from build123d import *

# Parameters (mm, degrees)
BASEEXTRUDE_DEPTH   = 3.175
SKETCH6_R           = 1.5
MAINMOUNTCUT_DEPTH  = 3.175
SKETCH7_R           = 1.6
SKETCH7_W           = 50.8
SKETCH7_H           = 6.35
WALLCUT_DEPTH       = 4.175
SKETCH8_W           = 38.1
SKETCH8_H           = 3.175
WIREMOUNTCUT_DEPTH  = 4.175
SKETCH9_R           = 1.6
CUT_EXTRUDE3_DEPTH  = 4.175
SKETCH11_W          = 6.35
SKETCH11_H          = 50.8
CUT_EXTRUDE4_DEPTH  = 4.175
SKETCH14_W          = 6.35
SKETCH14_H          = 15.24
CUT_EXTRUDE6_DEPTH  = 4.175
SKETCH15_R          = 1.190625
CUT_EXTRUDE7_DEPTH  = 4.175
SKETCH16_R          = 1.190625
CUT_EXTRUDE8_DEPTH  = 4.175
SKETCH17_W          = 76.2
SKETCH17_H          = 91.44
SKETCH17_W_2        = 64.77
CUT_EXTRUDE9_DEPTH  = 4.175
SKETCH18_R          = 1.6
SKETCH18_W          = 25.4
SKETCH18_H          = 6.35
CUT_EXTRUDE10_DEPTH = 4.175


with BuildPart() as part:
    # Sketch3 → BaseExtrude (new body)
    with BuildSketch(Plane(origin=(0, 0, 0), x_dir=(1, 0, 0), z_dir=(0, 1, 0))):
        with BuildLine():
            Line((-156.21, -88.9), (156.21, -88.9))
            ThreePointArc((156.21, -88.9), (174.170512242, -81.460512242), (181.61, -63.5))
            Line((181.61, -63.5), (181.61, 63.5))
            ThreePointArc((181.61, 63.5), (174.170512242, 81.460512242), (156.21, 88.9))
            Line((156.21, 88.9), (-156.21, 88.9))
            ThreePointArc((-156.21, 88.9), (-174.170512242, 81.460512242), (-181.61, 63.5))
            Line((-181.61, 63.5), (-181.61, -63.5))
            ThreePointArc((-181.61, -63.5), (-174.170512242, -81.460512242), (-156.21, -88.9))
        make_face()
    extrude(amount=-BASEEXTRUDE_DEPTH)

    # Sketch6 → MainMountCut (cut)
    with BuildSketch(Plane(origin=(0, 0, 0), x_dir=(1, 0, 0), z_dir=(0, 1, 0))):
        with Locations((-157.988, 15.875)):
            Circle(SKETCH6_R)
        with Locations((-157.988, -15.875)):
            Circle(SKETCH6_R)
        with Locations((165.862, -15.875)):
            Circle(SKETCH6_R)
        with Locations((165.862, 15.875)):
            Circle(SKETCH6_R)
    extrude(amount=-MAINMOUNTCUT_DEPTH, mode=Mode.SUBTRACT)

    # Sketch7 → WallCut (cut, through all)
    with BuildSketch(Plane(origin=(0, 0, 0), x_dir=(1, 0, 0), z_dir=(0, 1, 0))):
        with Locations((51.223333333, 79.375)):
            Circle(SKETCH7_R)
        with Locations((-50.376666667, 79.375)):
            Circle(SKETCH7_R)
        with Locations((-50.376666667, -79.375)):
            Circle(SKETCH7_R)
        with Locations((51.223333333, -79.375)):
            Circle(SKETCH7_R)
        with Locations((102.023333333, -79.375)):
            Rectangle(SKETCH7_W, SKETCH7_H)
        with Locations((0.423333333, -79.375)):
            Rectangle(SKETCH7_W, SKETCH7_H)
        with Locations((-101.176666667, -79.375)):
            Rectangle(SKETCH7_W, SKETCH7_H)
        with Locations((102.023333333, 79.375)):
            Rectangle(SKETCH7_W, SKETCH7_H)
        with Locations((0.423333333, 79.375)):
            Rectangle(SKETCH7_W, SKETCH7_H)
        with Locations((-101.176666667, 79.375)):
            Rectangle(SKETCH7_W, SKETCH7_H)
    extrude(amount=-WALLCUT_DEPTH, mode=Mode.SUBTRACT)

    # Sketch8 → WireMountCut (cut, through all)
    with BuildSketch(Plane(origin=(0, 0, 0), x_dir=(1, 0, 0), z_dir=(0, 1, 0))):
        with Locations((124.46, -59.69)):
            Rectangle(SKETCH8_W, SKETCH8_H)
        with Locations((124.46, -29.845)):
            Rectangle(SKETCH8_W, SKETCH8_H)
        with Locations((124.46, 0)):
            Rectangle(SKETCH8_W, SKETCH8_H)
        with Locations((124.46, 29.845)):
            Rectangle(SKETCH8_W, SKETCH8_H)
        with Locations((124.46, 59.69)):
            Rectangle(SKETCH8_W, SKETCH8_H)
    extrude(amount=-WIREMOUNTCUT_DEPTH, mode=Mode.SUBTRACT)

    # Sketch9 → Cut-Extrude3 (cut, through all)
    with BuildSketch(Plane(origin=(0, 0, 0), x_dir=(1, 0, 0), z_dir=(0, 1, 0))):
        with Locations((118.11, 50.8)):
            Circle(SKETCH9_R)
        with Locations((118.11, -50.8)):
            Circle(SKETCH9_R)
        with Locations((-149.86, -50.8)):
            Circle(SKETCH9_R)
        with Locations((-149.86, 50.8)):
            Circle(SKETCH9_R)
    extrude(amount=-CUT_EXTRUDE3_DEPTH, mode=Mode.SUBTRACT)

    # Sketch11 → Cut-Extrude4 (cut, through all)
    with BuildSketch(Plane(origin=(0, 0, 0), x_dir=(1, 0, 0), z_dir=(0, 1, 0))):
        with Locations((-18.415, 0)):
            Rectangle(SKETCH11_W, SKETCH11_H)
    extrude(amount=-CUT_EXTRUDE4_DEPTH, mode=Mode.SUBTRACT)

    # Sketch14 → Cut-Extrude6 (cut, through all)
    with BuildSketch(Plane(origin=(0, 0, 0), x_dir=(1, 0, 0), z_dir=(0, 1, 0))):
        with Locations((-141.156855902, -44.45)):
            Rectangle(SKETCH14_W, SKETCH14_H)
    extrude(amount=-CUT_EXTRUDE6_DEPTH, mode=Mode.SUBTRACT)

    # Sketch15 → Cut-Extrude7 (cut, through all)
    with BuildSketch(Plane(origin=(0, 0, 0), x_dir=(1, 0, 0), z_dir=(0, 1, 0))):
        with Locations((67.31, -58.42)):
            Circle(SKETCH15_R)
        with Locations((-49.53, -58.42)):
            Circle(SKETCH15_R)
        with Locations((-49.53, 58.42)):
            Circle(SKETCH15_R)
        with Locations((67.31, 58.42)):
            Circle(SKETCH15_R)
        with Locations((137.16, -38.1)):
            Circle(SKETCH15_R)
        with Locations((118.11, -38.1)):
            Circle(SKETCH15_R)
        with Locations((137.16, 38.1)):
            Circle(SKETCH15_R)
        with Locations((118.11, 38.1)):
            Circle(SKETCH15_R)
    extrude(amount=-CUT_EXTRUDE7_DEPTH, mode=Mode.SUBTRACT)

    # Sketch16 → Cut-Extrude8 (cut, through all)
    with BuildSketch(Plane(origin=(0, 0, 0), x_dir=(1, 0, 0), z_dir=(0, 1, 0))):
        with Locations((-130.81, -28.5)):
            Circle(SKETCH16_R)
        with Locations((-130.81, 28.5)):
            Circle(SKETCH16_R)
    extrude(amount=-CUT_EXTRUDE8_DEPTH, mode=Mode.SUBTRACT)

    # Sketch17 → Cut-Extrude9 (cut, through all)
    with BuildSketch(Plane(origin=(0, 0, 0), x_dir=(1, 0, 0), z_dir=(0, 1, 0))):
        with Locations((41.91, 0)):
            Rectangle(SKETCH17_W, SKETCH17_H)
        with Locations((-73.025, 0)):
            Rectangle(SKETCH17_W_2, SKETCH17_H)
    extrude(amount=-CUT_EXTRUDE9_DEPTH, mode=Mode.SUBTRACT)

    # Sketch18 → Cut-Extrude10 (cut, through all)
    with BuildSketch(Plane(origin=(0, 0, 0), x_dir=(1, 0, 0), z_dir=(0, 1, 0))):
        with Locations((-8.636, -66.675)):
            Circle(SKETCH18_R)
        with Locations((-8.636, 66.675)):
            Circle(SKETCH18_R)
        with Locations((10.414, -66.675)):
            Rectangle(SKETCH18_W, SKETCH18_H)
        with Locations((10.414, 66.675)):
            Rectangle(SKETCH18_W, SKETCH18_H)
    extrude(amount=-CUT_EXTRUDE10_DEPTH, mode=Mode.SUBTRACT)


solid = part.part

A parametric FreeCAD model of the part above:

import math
import FreeCAD as App
import Part
import Sketcher

V = App.Vector
Q = App.Units.Quantity


def add_polygon(sketch, points):
    """Adds a closed chain of lines whose ends are joined by coincident constraints."""
    first, n = sketch.GeometryCount, len(points)
    for a, b in zip(points, points[1:] + points[:1]):
        sketch.addGeometry(Part.LineSegment(App.Vector(*a, 0), App.Vector(*b, 0)), False)
    for i in range(n):
        sketch.addConstraint(Sketcher.Constraint("Coincident", first + i, 2, first + (i + 1) % n, 1))

doc = App.newDocument("Part")
body = doc.addObject("PartDesign::Body", "Body")

# Sketch on XZ plane
sketch1 = body.newObject("Sketcher::SketchObject", "Sketch")
sketch1.AttachmentSupport = (doc.getObject("XZ_Plane"), [""])
sketch1.MapMode = "FlatFace"
sketch1.addGeometry([
    Part.LineSegment(V(-156, 89, 0), V(156, 89, 0)),  # 0
    Part.ArcOfCircle(Part.Circle(V(156, 64, 0), V(0, 0, 1), 25), math.radians(0), math.radians(90)),  # 1
    Part.LineSegment(V(182, 64, 0), V(182, -64, 0)),  # 2
    Part.ArcOfCircle(Part.Circle(V(156, -64, 0), V(0, 0, 1), 25), math.radians(-90), math.radians(0)),  # 3
    Part.LineSegment(V(156, -89, 0), V(-156, -89, 0)),  # 4
    Part.ArcOfCircle(Part.Circle(V(-156, -64, 0), V(0, 0, 1), 25), math.radians(180), math.radians(270)),  # 5
    Part.LineSegment(V(-182, -64, 0), V(-182, 64, 0)),  # 6
    Part.ArcOfCircle(Part.Circle(V(-156, 64, 0), V(0, 0, 1), 25), math.radians(90), math.radians(180)),  # 7
], False)
sketch1.addConstraint([
    Sketcher.Constraint("Tangent", 0, 2, 1, 2),
    Sketcher.Constraint("Tangent", 1, 1, 2, 1),
    Sketcher.Constraint("Tangent", 2, 2, 3, 2),
    Sketcher.Constraint("Tangent", 3, 1, 4, 1),
    Sketcher.Constraint("Tangent", 4, 2, 5, 2),
    Sketcher.Constraint("Tangent", 5, 1, 6, 1),
    Sketcher.Constraint("Tangent", 6, 2, 7, 2),
    Sketcher.Constraint("Tangent", 7, 1, 0, 1),
    Sketcher.Constraint("Horizontal", 0),
    Sketcher.Constraint("Vertical", 2),
    Sketcher.Constraint("Horizontal", 4),
    Sketcher.Constraint("Vertical", 6),
    Sketcher.Constraint("Equal", 1, 3),
    Sketcher.Constraint("Equal", 3, 5),
    Sketcher.Constraint("Equal", 5, 7),
    Sketcher.Constraint("Symmetric", 1, 3, 5, 3, -1, 1),
    Sketcher.Constraint("Radius", 1, Q("1 in")),
    Sketcher.Constraint("DistanceY", 2, 2, 2, 1, Q("5 in")),
    Sketcher.Constraint("DistanceX", 0, 1, 0, 2, Q("12.3 in")),
])
pad1 = body.newObject("PartDesign::Pad", "Pad")
pad1.Profile = sketch1
pad1.Length = Q("0.125 in")

# Sketch on XZ plane
sketch2 = body.newObject("Sketcher::SketchObject", "Sketch001")
sketch2.AttachmentSupport = (doc.getObject("XZ_Plane"), [""])
sketch2.MapMode = "FlatFace"
sketch2.addGeometry([
    Part.Circle(V(-158, -15.9, 0), V(0, 0, 1), 1.5),
    Part.Circle(V(-158, 15.9, 0), V(0, 0, 1), 1.5),
    Part.Circle(V(165.9, 15.9, 0), V(0, 0, 1), 1.5),
    Part.Circle(V(165.9, -15.9, 0), V(0, 0, 1), 1.5),
], False)
sketch2.addConstraint([
    Sketcher.Constraint("Equal", 0, 1),
    Sketcher.Constraint("Equal", 1, 2),
    Sketcher.Constraint("Equal", 2, 3),
    Sketcher.Constraint("Symmetric", 0, 3, 1, 3, -1),
    Sketcher.Constraint("Symmetric", 2, 3, 3, 3, -1),
    Sketcher.Constraint("Horizontal", 1, 3, 2, 3),
    Sketcher.Constraint("Diameter", 0, Q("3 mm")),
    Sketcher.Constraint("DistanceX", 0, 3, -1, 1, Q("6.22 in")),
    Sketcher.Constraint("DistanceX", -1, 1, 2, 3, Q("6.53 in")),
    Sketcher.Constraint("DistanceY", 0, 3, 1, 3, Q("1.25 in")),
])
pocket1 = body.newObject("PartDesign::Pocket", "Pocket")
pocket1.Profile = sketch2
pocket1.Length = Q("0.125 in")
pocket1.Reversed = True

# Sketch on XZ plane
sketch3 = body.newObject("Sketcher::SketchObject", "Sketch002")
sketch3.AttachmentSupport = (doc.getObject("XZ_Plane"), [""])
sketch3.MapMode = "FlatFace"
sketch3.addGeometry(Part.Circle(V(51.2, -79.4, 0), V(0, 0, 1), 1.6), False)  # 0
sketch3.addGeometry(Part.Circle(V(-50.4, -79.4, 0), V(0, 0, 1), 1.6), False)  # 1
sketch3.addGeometry(Part.Circle(V(-50.4, 79.4, 0), V(0, 0, 1), 1.6), False)  # 2
sketch3.addGeometry(Part.Circle(V(51.2, 79.4, 0), V(0, 0, 1), 1.6), False)  # 3
add_polygon(sketch3, [(76.6, 76.2), (76.6, 82.5), (127.4, 82.5), (127.4, 76.2)])  # lines 4-7
add_polygon(sketch3, [(-25, 76.2), (-25, 82.5), (25.8, 82.5), (25.8, 76.2)])  # lines 8-11
add_polygon(sketch3, [(-126.6, 76.2), (-126.6, 82.5), (-75.8, 82.5), (-75.8, 76.2)])  # lines 12-15
add_polygon(sketch3, [(76.6, -82.5), (76.6, -76.2), (127.4, -76.2), (127.4, -82.5)])  # lines 16-19
add_polygon(sketch3, [(-25, -82.5), (-25, -76.2), (25.8, -76.2), (25.8, -82.5)])  # lines 20-23
add_polygon(sketch3, [(-126.6, -82.5), (-126.6, -76.2), (-75.8, -76.2), (-75.8, -82.5)])  # lines 24-27
sketch3.addConstraint([
    Sketcher.Constraint("Vertical", 4),
    Sketcher.Constraint("Horizontal", 5),
    Sketcher.Constraint("Vertical", 6),
    Sketcher.Constraint("Horizontal", 7),
    Sketcher.Constraint("Vertical", 8),
    Sketcher.Constraint("Horizontal", 9),
    Sketcher.Constraint("Vertical", 10),
    Sketcher.Constraint("Horizontal", 11),
    Sketcher.Constraint("Vertical", 12),
    Sketcher.Constraint("Horizontal", 13),
    Sketcher.Constraint("Vertical", 14),
    Sketcher.Constraint("Horizontal", 15),
    Sketcher.Constraint("Vertical", 16),
    Sketcher.Constraint("Horizontal", 17),
    Sketcher.Constraint("Vertical", 18),
    Sketcher.Constraint("Horizontal", 19),
    Sketcher.Constraint("Vertical", 20),
    Sketcher.Constraint("Horizontal", 21),
    Sketcher.Constraint("Vertical", 22),
    Sketcher.Constraint("Horizontal", 23),
    Sketcher.Constraint("Vertical", 24),
    Sketcher.Constraint("Horizontal", 25),
    Sketcher.Constraint("Vertical", 26),
    Sketcher.Constraint("Horizontal", 27),
    Sketcher.Constraint("Equal", 0, 1),
    Sketcher.Constraint("Equal", 1, 2),
    Sketcher.Constraint("Equal", 2, 3),
    Sketcher.Constraint("Symmetric", 1, 3, 2, 3, -1),
    Sketcher.Constraint("Symmetric", 0, 3, 3, 3, -1),
    Sketcher.Constraint("Symmetric", 7, 2, 16, 2, -1),
    Sketcher.Constraint("Symmetric", 5, 2, 18, 2, -1),
    Sketcher.Constraint("Symmetric", 11, 2, 20, 2, -1),
    Sketcher.Constraint("Symmetric", 9, 2, 22, 2, -1),
    Sketcher.Constraint("Symmetric", 15, 2, 24, 2, -1),
    Sketcher.Constraint("Symmetric", 13, 2, 26, 2, -1),
    Sketcher.Constraint("Horizontal", 0, 3, 1, 3),
    Sketcher.Constraint("Horizontal", 5, 2, 8, 2),
    Sketcher.Constraint("Horizontal", 7, 2, 10, 2),
    Sketcher.Constraint("Horizontal", 9, 2, 12, 2),
    Sketcher.Constraint("Horizontal", 11, 2, 14, 2),
    Sketcher.Constraint("Equal", 7, 9),
    Sketcher.Constraint("Equal", 11, 13),
    Sketcher.Constraint("DistanceX", 5, 1, 5, 2, Q("2 in")),
    Sketcher.Constraint("DistanceY", -1, 1, 6, 2, Q("3 in")),
    Sketcher.Constraint("DistanceX", 1, 3, 0, 3, Q("4 in")),
    Sketcher.Constraint("DistanceX", 3, 3, 4, 2, Q("1 in")),
    Sketcher.Constraint("DistanceX", 2, 3, 8, 2, Q("1 in")),
    Sketcher.Constraint("DistanceX", 12, 2, 2, 3, Q("3 in")),
    Sketcher.Constraint("DistanceY", 4, 1, 4, 2, Q("0.25 in")),
    Sketcher.Constraint("Diameter", 0, Q("3.2 mm")),
    Sketcher.Constraint("DistanceY", 1, 3, 2, 3, Q("6.25 in")),
    Sketcher.Constraint("DistanceX", -1, 1, 0, 3, Q("51.223333 mm")),
])
pocket2 = body.newObject("PartDesign::Pocket", "Pocket001")
pocket2.Profile = sketch3
pocket2.Type = "ThroughAll"
pocket2.Reversed = True

# Sketch on XZ plane
sketch4 = body.newObject("Sketcher::SketchObject", "Sketch003")
sketch4.AttachmentSupport = (doc.getObject("XZ_Plane"), [""])
sketch4.MapMode = "FlatFace"
add_polygon(sketch4, [(105.4, 58.1), (105.4, 61.3), (143.5, 61.3), (143.5, 58.1)])  # lines 0-3
add_polygon(sketch4, [(105.4, 28.3), (105.4, 31.4), (143.5, 31.4), (143.5, 28.3)])  # lines 4-7
add_polygon(sketch4, [(105.4, -1.6), (105.4, 1.6), (143.5, 1.6), (143.5, -1.6)])  # lines 8-11
add_polygon(sketch4, [(105.4, -31.4), (105.4, -28.3), (143.5, -28.3), (143.5, -31.4)])  # lines 12-15
add_polygon(sketch4, [(105.4, -61.3), (105.4, -58.1), (143.5, -58.1), (143.5, -61.3)])  # lines 16-19
sketch4.addConstraint([
    Sketcher.Constraint("Vertical", 0),
    Sketcher.Constraint("Horizontal", 1),
    Sketcher.Constraint("Vertical", 2),
    Sketcher.Constraint("Horizontal", 3),
    Sketcher.Constraint("Vertical", 4),
    Sketcher.Constraint("Horizontal", 5),
    Sketcher.Constraint("Vertical", 6),
    Sketcher.Constraint("Horizontal", 7),
    Sketcher.Constraint("Vertical", 8),
    Sketcher.Constraint("Horizontal", 9),
    Sketcher.Constraint("Vertical", 10),
    Sketcher.Constraint("Horizontal", 11),
    Sketcher.Constraint("Vertical", 12),
    Sketcher.Constraint("Horizontal", 13),
    Sketcher.Constraint("Vertical", 14),
    Sketcher.Constraint("Horizontal", 15),
    Sketcher.Constraint("Vertical", 16),
    Sketcher.Constraint("Horizontal", 17),
    Sketcher.Constraint("Vertical", 18),
    Sketcher.Constraint("Horizontal", 19),
    Sketcher.Constraint("Symmetric", 7, 2, 12, 2, -1),
    Sketcher.Constraint("Symmetric", 5, 2, 14, 2, -1),
    Sketcher.Constraint("Symmetric", 3, 2, 16, 2, -1),
    Sketcher.Constraint("Symmetric", 1, 2, 18, 2, -1),
    Sketcher.Constraint("Vertical", 3, 2, 4, 2),
    Sketcher.Constraint("Vertical", 2, 2, 5, 2),
    Sketcher.Constraint("Vertical", 7, 2, 8, 2),
    Sketcher.Constraint("Vertical", 6, 2, 9, 2),
    Sketcher.Constraint("Equal", 2, 4),
    Sketcher.Constraint("Equal", 6, 8),
    Sketcher.Constraint("DistanceX", 1, 1, 1, 2, Q("1.5 in")),
    Sketcher.Constraint("DistanceY", 6, 2, 1, 2, Q("1.3 in")),
    Sketcher.Constraint("DistanceY", 10, 2, 5, 2, Q("1.3 in")),
    Sketcher.Constraint("DistanceY", 14, 2, 9, 2, Q("1.3 in")),
    Sketcher.Constraint("DistanceY", 0, 1, 0, 2, Q("0.125 in")),
    Sketcher.Constraint("DistanceX", -1, 1, 0, 2, Q("4.15 in")),
])
pocket3 = body.newObject("PartDesign::Pocket", "Pocket002")
pocket3.Profile = sketch4
pocket3.Type = "ThroughAll"
pocket3.Reversed = True

# Sketch on XZ plane
sketch5 = body.newObject("Sketcher::SketchObject", "Sketch004")
sketch5.AttachmentSupport = (doc.getObject("XZ_Plane"), [""])
sketch5.MapMode = "FlatFace"
sketch5.addGeometry([
    Part.Circle(V(118.1, -50.8, 0), V(0, 0, 1), 1.6),
    Part.Circle(V(118.1, 50.8, 0), V(0, 0, 1), 1.6),
    Part.Circle(V(-149.9, 50.8, 0), V(0, 0, 1), 1.6),
    Part.Circle(V(-149.9, -50.8, 0), V(0, 0, 1), 1.6),
], False)
sketch5.addConstraint([
    Sketcher.Constraint("Equal", 0, 1),
    Sketcher.Constraint("Equal", 1, 2),
    Sketcher.Constraint("Equal", 2, 3),
    Sketcher.Constraint("Symmetric", 0, 3, 1, 3, -1),
    Sketcher.Constraint("Symmetric", 2, 3, 3, 3, -1),
    Sketcher.Constraint("Horizontal", 1, 3, 2, 3),
    Sketcher.Constraint("DistanceY", 0, 3, -1, 1, Q("2 in")),
    Sketcher.Constraint("DistanceX", 2, 3, -1, 1, Q("5.9 in")),
    Sketcher.Constraint("Diameter", 0, Q("3.2 mm")),
    Sketcher.Constraint("DistanceX", -1, 1, 0, 3, Q("4.65 in")),
])
pocket4 = body.newObject("PartDesign::Pocket", "Pocket003")
pocket4.Profile = sketch5
pocket4.Type = "ThroughAll"
pocket4.Reversed = True

# Sketch on XZ plane
sketch6 = body.newObject("Sketcher::SketchObject", "Sketch005")
sketch6.AttachmentSupport = (doc.getObject("XZ_Plane"), [""])
sketch6.MapMode = "FlatFace"
add_polygon(sketch6, [(-22, -25), (-22, 25), (-15, 25), (-15, -25)])  # lines 0-3
sketch6.addConstraint([
    Sketcher.Constraint("Vertical", 0),
    Sketcher.Constraint("Horizontal", 1),
    Sketcher.Constraint("Vertical", 2),
    Sketcher.Constraint("Horizontal", 3),
    Sketcher.Constraint("DistanceY", 0, 1, 0, 2, Q("2 in")),
    Sketcher.Constraint("DistanceY", -1, 1, 0, 2, Q("1 in")),
    Sketcher.Constraint("DistanceX", 1, 1, 1, 2, Q("0.25 in")),
    Sketcher.Constraint("DistanceX", 1, 2, -1, 1, Q("0.6 in")),
])
pocket5 = body.newObject("PartDesign::Pocket", "Pocket004")
pocket5.Profile = sketch6
pocket5.Type = "ThroughAll"
pocket5.Reversed = True

# Sketch on XZ plane
sketch7 = body.newObject("Sketcher::SketchObject", "Sketch006")
sketch7.AttachmentSupport = (doc.getObject("XZ_Plane"), [""])
sketch7.MapMode = "FlatFace"
add_polygon(sketch7, [(-144, 37), (-144, 52), (-138, 52), (-138, 37)])  # lines 0-3
sketch7.addConstraint([
    Sketcher.Constraint("Vertical", 0),
    Sketcher.Constraint("Horizontal", 1),
    Sketcher.Constraint("Vertical", 2),
    Sketcher.Constraint("Horizontal", 3),
    Sketcher.Constraint("DistanceY", 0, 1, 0, 2, Q("0.6 in")),
    Sketcher.Constraint("DistanceX", 1, 1, 1, 2, Q("0.25 in")),
    Sketcher.Constraint("DistanceY", -1, 1, 0, 2, Q("2.05 in")),
    Sketcher.Constraint("DistanceX", 0, 2, -1, 1, Q("144.331856 mm")),
])
pocket6 = body.newObject("PartDesign::Pocket", "Pocket005")
pocket6.Profile = sketch7
pocket6.Type = "ThroughAll"
pocket6.Reversed = True

# Sketch on XZ plane
sketch8 = body.newObject("Sketcher::SketchObject", "Sketch007")
sketch8.AttachmentSupport = (doc.getObject("XZ_Plane"), [""])
sketch8.MapMode = "FlatFace"
sketch8.addGeometry([
    Part.Circle(V(67.3, 58.4, 0), V(0, 0, 1), 1.2),  # 0
    Part.Circle(V(-49.5, 58.4, 0), V(0, 0, 1), 1.2),  # 1
    Part.Circle(V(-49.5, -58.4, 0), V(0, 0, 1), 1.2),  # 2
    Part.Circle(V(67.3, -58.4, 0), V(0, 0, 1), 1.2),  # 3
    Part.Circle(V(137.2, 38.1, 0), V(0, 0, 1), 1.2),  # 4
    Part.Circle(V(118.1, 38.1, 0), V(0, 0, 1), 1.2),  # 5
    Part.Circle(V(137.2, -38.1, 0), V(0, 0, 1), 1.2),  # 6
    Part.Circle(V(118.1, -38.1, 0), V(0, 0, 1), 1.2),  # 7
], False)
sketch8.addConstraint([
    Sketcher.Constraint("Equal", 0, 1),
    Sketcher.Constraint("Equal", 1, 2),
    Sketcher.Constraint("Equal", 2, 3),
    Sketcher.Constraint("Equal", 3, 4),
    Sketcher.Constraint("Equal", 4, 5),
    Sketcher.Constraint("Equal", 5, 6),
    Sketcher.Constraint("Equal", 6, 7),
    Sketcher.Constraint("Symmetric", 1, 3, 2, 3, -1),
    Sketcher.Constraint("Symmetric", 0, 3, 3, 3, -1),
    Sketcher.Constraint("Symmetric", 4, 3, 6, 3, -1),
    Sketcher.Constraint("Symmetric", 5, 3, 7, 3, -1),
    Sketcher.Constraint("Horizontal", 0, 3, 1, 3),
    Sketcher.Constraint("Horizontal", 4, 3, 5, 3),
    Sketcher.Constraint("Diameter", 0, Q("0.09375 in")),
    Sketcher.Constraint("DistanceX", 0, 3, 5, 3, Q("2 in")),
    Sketcher.Constraint("DistanceY", 6, 3, 4, 3, Q("3 in")),
    Sketcher.Constraint("DistanceY", -1, 1, 0, 3, Q("2.3 in")),
    Sketcher.Constraint("DistanceX", -1, 1, 4, 3, Q("5.4 in")),
    Sketcher.Constraint("DistanceX", 1, 3, 0, 3, Q("4.6 in")),
    Sketcher.Constraint("DistanceX", -1, 1, 0, 3, Q("2.65 in")),
])
pocket7 = body.newObject("PartDesign::Pocket", "Pocket006")
pocket7.Profile = sketch8
pocket7.Type = "ThroughAll"
pocket7.Reversed = True

# Sketch on XZ plane
sketch9 = body.newObject("Sketcher::SketchObject", "Sketch008")
sketch9.AttachmentSupport = (doc.getObject("XZ_Plane"), [""])
sketch9.MapMode = "FlatFace"
sketch9.addGeometry([
    Part.Circle(V(-130.8, 28.5, 0), V(0, 0, 1), 1.2),
    Part.Circle(V(-130.8, -28.5, 0), V(0, 0, 1), 1.2),
], False)
sketch9.addConstraint([
    Sketcher.Constraint("Equal", 0, 1),
    Sketcher.Constraint("Symmetric", 0, 3, 1, 3, -1),
    Sketcher.Constraint("Diameter", 0, Q("0.09375 in")),
    Sketcher.Constraint("DistanceX", 0, 3, -1, 1, Q("5.15 in")),
    Sketcher.Constraint("DistanceY", -1, 1, 0, 3, Q("28.5 mm")),
])
pocket8 = body.newObject("PartDesign::Pocket", "Pocket007")
pocket8.Profile = sketch9
pocket8.Type = "ThroughAll"
pocket8.Reversed = True

# Sketch on XZ plane
sketch10 = body.newObject("Sketcher::SketchObject", "Sketch009")
sketch10.AttachmentSupport = (doc.getObject("XZ_Plane"), [""])
sketch10.MapMode = "FlatFace"
add_polygon(sketch10, [(4, -46), (4, 46), (80, 46), (80, -46)])  # lines 0-3
add_polygon(sketch10, [(-105, -46), (-105, 46), (-41, 46), (-41, -46)])  # lines 4-7
sketch10.addConstraint([
    Sketcher.Constraint("Vertical", 0),
    Sketcher.Constraint("Horizontal", 1),
    Sketcher.Constraint("Vertical", 2),
    Sketcher.Constraint("Horizontal", 3),
    Sketcher.Constraint("Vertical", 4),
    Sketcher.Constraint("Horizontal", 5),
    Sketcher.Constraint("Vertical", 6),
    Sketcher.Constraint("Horizontal", 7),
    Sketcher.Constraint("Horizontal", 1, 2, 4, 2),
    Sketcher.Constraint("Horizontal", 3, 2, 6, 2),
    Sketcher.Constraint("DistanceX", 1, 1, 1, 2, Q("3 in")),
    Sketcher.Constraint("DistanceY", 0, 1, 0, 2, Q("3.6 in")),
    Sketcher.Constraint("DistanceX", 5, 1, 5, 2, Q("2.55 in")),
    Sketcher.Constraint("DistanceY", -1, 1, 0, 2, Q("1.8 in")),
    Sketcher.Constraint("DistanceX", 5, 2, -1, 1, Q("1.6 in")),
    Sketcher.Constraint("DistanceX", 4, 2, 0, 2, Q("4.3 in")),
])
pocket9 = body.newObject("PartDesign::Pocket", "Pocket008")
pocket9.Profile = sketch10
pocket9.Type = "ThroughAll"
pocket9.Reversed = True

# Sketch on XZ plane
sketch11 = body.newObject("Sketcher::SketchObject", "Sketch010")
sketch11.AttachmentSupport = (doc.getObject("XZ_Plane"), [""])
sketch11.MapMode = "FlatFace"
sketch11.addGeometry(Part.Circle(V(-8.6, 66.7, 0), V(0, 0, 1), 1.6), False)  # 0
sketch11.addGeometry(Part.Circle(V(-8.6, -66.7, 0), V(0, 0, 1), 1.6), False)  # 1
add_polygon(sketch11, [(-2.3, 63.5), (-2.3, 69.8), (23.1, 69.8), (23.1, 63.5)])  # lines 2-5
add_polygon(sketch11, [(-2.3, -69.8), (-2.3, -63.5), (23.1, -63.5), (23.1, -69.8)])  # lines 6-9
sketch11.addConstraint([
    Sketcher.Constraint("Vertical", 2),
    Sketcher.Constraint("Horizontal", 3),
    Sketcher.Constraint("Vertical", 4),
    Sketcher.Constraint("Horizontal", 5),
    Sketcher.Constraint("Vertical", 6),
    Sketcher.Constraint("Horizontal", 7),
    Sketcher.Constraint("Vertical", 8),
    Sketcher.Constraint("Horizontal", 9),
    Sketcher.Constraint("Equal", 0, 1),
    Sketcher.Constraint("Symmetric", 0, 3, 1, 3, -1),
    Sketcher.Constraint("Symmetric", 5, 2, 6, 2, -1),
    Sketcher.Constraint("Symmetric", 3, 2, 8, 2, -1),
    Sketcher.Constraint("DistanceX", 3, 1, 3, 2, Q("1 in")),
    Sketcher.Constraint("DistanceY", 6, 2, 5, 2, Q("5 in")),
    Sketcher.Constraint("DistanceY", 2, 1, 2, 2, Q("0.25 in")),
    Sketcher.Constraint("Diameter", 0, Q("3.2 mm")),
    Sketcher.Constraint("DistanceX", 0, 3, -1, 1, Q("0.34 in")),
    Sketcher.Constraint("DistanceX", 2, 2, -1, 1, Q("0.09 in")),
    Sketcher.Constraint("DistanceY", 1, 3, 0, 3, Q("5.25 in")),
])
pocket10 = body.newObject("PartDesign::Pocket", "Pocket009")
pocket10.Profile = sketch11
pocket10.Type = "ThroughAll"
pocket10.Reversed = True

doc.recompute()
